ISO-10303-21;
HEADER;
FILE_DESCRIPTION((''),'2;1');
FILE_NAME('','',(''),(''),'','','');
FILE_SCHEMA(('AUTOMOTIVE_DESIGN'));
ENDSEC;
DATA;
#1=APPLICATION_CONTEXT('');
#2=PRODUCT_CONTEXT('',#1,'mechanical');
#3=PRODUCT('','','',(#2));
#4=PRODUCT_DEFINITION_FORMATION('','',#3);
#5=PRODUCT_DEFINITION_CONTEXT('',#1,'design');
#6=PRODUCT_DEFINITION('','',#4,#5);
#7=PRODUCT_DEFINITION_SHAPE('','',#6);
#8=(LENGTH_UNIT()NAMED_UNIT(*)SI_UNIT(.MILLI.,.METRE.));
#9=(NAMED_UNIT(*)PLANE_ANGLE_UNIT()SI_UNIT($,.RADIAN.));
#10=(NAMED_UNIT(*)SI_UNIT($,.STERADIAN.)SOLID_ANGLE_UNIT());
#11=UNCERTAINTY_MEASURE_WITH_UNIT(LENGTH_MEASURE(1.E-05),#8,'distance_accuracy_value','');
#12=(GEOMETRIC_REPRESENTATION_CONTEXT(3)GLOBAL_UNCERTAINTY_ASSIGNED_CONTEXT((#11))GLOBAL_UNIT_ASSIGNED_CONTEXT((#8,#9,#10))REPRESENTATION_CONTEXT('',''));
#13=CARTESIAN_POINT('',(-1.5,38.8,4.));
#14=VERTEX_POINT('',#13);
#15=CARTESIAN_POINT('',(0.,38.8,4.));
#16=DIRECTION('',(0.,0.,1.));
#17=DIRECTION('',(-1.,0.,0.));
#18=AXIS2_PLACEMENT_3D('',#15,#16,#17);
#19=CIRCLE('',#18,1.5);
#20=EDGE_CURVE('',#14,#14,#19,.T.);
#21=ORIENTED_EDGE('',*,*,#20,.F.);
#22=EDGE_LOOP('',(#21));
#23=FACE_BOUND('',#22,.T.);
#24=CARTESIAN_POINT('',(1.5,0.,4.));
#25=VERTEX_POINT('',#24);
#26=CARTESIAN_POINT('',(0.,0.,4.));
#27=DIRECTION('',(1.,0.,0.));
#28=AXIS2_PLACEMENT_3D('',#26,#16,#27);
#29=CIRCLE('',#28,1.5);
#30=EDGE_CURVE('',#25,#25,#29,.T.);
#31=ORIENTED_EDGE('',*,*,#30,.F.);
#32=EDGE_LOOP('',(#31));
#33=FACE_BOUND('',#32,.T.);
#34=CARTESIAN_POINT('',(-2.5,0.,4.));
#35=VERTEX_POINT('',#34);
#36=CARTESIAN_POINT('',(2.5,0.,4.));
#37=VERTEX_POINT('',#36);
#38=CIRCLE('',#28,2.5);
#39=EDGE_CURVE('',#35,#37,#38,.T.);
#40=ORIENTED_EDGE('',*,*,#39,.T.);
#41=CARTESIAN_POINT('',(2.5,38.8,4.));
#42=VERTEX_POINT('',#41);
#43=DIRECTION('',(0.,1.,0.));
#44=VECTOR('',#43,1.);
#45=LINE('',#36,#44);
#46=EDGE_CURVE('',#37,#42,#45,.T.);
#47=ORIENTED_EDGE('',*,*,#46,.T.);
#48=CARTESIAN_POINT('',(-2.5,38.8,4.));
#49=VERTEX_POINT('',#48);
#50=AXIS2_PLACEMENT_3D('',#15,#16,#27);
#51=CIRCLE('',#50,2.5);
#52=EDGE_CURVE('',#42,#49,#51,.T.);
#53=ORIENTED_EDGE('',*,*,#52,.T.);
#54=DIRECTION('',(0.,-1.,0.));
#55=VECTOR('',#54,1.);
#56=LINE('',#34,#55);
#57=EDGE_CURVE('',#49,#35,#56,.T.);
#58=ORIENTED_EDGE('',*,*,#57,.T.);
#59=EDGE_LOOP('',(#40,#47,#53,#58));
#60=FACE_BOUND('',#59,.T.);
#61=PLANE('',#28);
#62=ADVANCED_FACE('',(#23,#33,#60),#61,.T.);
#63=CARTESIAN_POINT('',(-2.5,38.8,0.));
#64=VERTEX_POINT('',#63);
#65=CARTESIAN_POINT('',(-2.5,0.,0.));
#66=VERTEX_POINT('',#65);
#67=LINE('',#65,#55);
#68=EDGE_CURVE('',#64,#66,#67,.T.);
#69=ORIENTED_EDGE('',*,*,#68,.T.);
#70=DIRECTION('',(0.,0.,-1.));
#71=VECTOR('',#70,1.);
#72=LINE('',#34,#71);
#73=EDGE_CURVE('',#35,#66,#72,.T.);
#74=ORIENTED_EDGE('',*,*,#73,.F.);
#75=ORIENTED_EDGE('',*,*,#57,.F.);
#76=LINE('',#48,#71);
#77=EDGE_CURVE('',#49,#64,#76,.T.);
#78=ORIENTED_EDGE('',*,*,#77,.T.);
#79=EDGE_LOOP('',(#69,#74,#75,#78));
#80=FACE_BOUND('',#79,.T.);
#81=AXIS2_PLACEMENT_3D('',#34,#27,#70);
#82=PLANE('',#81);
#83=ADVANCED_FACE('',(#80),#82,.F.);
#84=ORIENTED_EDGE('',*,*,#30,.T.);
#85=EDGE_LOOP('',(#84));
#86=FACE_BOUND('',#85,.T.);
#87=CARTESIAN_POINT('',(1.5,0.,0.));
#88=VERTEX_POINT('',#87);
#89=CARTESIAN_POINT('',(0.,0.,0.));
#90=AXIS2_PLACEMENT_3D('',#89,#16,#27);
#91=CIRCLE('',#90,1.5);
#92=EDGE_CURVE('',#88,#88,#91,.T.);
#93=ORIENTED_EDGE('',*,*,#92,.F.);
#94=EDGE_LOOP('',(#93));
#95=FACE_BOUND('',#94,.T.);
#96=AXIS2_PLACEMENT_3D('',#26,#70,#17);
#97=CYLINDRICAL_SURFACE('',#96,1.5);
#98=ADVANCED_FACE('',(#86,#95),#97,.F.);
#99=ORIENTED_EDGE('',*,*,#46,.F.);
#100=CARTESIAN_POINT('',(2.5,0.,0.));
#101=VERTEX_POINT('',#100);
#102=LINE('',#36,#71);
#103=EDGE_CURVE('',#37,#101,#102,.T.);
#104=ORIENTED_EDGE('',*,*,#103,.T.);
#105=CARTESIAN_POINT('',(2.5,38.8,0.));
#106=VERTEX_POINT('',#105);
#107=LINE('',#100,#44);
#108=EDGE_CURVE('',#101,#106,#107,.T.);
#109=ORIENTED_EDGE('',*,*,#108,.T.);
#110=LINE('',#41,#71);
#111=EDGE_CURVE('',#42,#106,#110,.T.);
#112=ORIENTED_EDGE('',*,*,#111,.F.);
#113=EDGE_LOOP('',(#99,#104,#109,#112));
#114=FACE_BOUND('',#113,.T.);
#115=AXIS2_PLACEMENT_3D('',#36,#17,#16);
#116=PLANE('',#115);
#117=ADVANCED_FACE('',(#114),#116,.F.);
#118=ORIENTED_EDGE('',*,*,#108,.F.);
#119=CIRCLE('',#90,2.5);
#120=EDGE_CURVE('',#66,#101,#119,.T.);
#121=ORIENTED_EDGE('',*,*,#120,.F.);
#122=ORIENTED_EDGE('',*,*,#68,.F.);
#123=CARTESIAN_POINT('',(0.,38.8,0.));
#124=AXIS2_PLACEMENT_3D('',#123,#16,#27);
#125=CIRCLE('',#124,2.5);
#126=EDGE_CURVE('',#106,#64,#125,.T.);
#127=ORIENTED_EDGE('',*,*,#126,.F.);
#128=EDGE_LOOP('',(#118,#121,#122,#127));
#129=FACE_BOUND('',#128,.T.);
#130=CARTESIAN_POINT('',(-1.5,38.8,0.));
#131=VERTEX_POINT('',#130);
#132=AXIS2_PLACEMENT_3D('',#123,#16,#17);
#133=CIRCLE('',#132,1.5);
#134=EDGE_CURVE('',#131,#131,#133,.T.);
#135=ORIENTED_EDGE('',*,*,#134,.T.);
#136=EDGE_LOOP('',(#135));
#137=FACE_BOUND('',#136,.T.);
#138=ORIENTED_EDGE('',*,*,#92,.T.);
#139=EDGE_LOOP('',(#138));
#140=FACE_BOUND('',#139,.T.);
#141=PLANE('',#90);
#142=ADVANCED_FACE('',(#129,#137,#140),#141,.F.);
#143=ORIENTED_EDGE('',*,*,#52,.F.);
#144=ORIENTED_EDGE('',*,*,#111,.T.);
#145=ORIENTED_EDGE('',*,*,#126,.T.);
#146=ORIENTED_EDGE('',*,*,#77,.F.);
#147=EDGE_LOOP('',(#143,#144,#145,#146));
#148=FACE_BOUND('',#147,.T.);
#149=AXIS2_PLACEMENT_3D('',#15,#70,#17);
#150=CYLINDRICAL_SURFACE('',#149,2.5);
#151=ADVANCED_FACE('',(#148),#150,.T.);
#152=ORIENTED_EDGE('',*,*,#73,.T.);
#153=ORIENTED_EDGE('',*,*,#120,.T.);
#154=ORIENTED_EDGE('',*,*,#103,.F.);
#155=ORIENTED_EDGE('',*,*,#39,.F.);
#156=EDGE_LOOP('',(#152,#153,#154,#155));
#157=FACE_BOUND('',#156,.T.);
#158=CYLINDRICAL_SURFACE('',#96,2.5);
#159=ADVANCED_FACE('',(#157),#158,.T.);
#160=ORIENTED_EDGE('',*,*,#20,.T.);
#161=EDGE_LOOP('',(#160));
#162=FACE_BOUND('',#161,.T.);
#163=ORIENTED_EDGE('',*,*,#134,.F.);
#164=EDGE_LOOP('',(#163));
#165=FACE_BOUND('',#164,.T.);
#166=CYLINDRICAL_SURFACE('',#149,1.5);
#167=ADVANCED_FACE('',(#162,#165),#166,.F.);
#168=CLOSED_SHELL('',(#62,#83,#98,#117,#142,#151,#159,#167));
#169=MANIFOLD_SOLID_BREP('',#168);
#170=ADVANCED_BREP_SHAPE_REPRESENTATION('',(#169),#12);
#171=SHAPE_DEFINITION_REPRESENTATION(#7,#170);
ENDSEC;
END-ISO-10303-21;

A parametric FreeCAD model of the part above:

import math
import FreeCAD as App
import Part
import Sketcher
from FreeCAD import Vector

doc = App.newDocument("Part")
params = doc.addObject("Spreadsheet::Sheet", "Params")
for row, (alias, value) in enumerate([
    ("sketch1_diameter", "3 mm"),
    ("sketch1_radius", "2.5 mm"),
    ("sketch1_height", "38.8 mm"),
    ("pad1_length", "4 mm"),
], start=1):
    params.set(f"A{row}", alias)
    params.set(f"B{row}", "=" + value)
    params.setAlias(f"B{row}", alias)

body = doc.addObject("PartDesign::Body", "Body")

sketch1 = body.newObject("Sketcher::SketchObject", "Sketch")
sketch1.AttachmentSupport = (doc.getObject("XY_Plane"), [""])
sketch1.MapMode = "FlatFace"
sketch1.addGeometry([
    Part.LineSegment(Vector(-2.5, 38.8, 0), Vector(-2.5, 0, 0)),
    Part.ArcOfCircle(Part.Circle(Vector(0, 0, 0), Vector(0, 0, 1), 2.5), math.radians(180), math.radians(360)),
    Part.LineSegment(Vector(2.5, 0, 0), Vector(2.5, 38.8, 0)),
    Part.ArcOfCircle(Part.Circle(Vector(0, 38.8, 0), Vector(0, 0, 1), 2.5), math.radians(0), math.radians(180)),
    Part.Circle(Vector(0, 0, 0), Vector(0, 0, 1), 1.5),
    Part.Circle(Vector(0, 38.8, 0), Vector(0, 0, 1), 1.5),
], False)
sketch1.addConstraint([
    Sketcher.Constraint("Tangent", 0, 2, 1, 1),
    Sketcher.Constraint("Tangent", 1, 2, 2, 1),
    Sketcher.Constraint("Tangent", 2, 2, 3, 1),
    Sketcher.Constraint("Tangent", 3, 2, 0, 1),
    Sketcher.Constraint("Vertical", 0),
    Sketcher.Constraint("Vertical", 2),
    Sketcher.Constraint("Coincident", 1, 3, -1, 1),
    Sketcher.Constraint("Coincident", 4, 3, -1, 1),
    Sketcher.Constraint("Coincident", 5, 3, 3, 3),
    Sketcher.Constraint("Equal", 4, 5),
    Sketcher.Constraint("Diameter", 4, 3.0),
    Sketcher.Constraint("Radius", 1, 2.5),
    Sketcher.Constraint("DistanceY", 0, 2, 0, 1, 38.8),
])
sketch1.setExpression("Constraints[10]", "Params.sketch1_diameter")
sketch1.setExpression("Constraints[11]", "Params.sketch1_radius")
sketch1.setExpression("Constraints[12]", "Params.sketch1_height")
pad1 = body.newObject("PartDesign::Pad", "Pad")
pad1.Profile = sketch1
pad1.setExpression("Length", "Params.pad1_length")

doc.recompute()
